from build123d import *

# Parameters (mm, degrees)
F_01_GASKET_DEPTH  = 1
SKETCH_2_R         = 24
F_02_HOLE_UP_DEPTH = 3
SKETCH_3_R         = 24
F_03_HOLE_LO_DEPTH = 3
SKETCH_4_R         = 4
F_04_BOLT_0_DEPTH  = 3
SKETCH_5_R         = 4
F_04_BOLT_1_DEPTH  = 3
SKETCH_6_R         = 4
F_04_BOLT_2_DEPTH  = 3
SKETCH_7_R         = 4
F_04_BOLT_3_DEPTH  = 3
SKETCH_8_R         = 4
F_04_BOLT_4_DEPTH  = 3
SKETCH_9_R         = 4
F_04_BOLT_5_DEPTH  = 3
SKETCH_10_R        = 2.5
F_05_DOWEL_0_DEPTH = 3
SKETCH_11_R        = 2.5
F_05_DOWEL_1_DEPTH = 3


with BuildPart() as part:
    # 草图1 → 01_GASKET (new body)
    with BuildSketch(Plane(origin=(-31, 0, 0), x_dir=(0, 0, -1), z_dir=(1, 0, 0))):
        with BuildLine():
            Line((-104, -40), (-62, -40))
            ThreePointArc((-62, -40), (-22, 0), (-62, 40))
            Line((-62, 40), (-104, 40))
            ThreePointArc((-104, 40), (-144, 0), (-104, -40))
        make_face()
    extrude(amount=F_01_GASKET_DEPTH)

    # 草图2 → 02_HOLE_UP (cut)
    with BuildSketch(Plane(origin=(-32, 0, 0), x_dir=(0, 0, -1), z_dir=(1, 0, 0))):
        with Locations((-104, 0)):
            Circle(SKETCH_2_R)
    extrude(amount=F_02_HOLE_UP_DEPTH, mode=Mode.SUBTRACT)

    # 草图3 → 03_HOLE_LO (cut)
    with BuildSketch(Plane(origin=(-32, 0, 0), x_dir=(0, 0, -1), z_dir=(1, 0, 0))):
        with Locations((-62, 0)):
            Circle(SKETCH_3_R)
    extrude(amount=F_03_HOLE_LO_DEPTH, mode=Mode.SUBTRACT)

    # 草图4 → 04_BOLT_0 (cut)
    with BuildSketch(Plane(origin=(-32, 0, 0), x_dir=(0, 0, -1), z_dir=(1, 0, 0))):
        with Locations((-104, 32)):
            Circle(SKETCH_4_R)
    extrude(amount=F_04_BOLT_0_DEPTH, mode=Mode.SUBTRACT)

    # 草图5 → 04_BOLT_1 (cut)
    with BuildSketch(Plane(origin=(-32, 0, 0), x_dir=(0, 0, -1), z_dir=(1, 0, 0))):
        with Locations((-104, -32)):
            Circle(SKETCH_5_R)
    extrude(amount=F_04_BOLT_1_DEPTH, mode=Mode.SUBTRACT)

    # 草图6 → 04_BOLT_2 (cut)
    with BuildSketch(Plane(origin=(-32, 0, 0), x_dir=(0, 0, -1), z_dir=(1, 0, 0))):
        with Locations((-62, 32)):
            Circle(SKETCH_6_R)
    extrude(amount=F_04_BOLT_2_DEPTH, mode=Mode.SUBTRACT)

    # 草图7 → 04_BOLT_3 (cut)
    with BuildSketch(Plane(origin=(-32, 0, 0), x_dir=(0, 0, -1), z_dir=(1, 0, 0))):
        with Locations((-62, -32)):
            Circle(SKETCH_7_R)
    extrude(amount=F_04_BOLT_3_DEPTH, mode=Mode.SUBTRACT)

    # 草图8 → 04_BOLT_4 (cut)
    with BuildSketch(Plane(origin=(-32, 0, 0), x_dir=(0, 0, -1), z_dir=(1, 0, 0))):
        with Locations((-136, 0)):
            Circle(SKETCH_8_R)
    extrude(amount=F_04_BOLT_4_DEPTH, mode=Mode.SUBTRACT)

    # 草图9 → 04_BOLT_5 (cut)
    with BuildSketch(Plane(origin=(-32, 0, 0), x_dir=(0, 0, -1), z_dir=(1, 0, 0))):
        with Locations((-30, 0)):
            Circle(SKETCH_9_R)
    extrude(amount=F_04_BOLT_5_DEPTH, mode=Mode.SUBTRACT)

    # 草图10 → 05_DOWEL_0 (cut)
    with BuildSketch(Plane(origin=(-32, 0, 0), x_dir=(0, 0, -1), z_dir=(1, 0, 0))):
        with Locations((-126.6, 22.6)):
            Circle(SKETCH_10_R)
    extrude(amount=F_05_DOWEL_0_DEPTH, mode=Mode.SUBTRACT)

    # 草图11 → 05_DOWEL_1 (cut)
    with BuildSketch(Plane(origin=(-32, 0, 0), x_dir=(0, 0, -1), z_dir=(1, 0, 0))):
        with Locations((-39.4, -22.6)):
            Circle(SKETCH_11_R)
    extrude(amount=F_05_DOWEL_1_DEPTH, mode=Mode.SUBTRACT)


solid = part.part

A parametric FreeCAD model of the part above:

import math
import FreeCAD as App
import Part
import Sketcher
Q = App.Units.Quantity

doc = App.newDocument("Part")
body = doc.addObject("PartDesign::Body", "Body")

sketch1 = body.newObject("Sketcher::SketchObject", "Sketch")
sketch1.AttachmentSupport = (doc.getObject("YZ_Plane"), [""])
sketch1.MapMode = "FlatFace"
sketch1.AttachmentOffset = App.Placement(App.Vector(0, 0, -31), App.Rotation())
sketch1.addGeometry([
    Part.LineSegment(App.Vector(-40, 104, 0), App.Vector(-40, 62, 0)),
    Part.ArcOfCircle(Part.Circle(App.Vector(0, 62, 0), App.Vector(0, 0, 1), 40), math.radians(180), math.radians(360)),
    Part.LineSegment(App.Vector(40, 62, 0), App.Vector(40, 104, 0)),
    Part.ArcOfCircle(Part.Circle(App.Vector(0, 104, 0), App.Vector(0, 0, 1), 40), math.radians(0), math.radians(180)),
], False)
sketch1.addConstraint([
    Sketcher.Constraint("Tangent", 0, 2, 1, 1),
    Sketcher.Constraint("Tangent", 1, 2, 2, 1),
    Sketcher.Constraint("Tangent", 2, 2, 3, 1),
    Sketcher.Constraint("Tangent", 3, 2, 0, 1),
    Sketcher.Constraint("Vertical", 0),
    Sketcher.Constraint("Vertical", 2),
    Sketcher.Constraint("PointOnObject", 1, 3, -2),
    Sketcher.Constraint("Radius", 1, Q("40 mm")),
    Sketcher.Constraint("DistanceY", 0, 2, 0, 1, Q("42 mm")),
    Sketcher.Constraint("DistanceY", -1, 1, 1, 3, Q("62 mm")),
])
pad1 = body.newObject("PartDesign::Pad", "Pad")
pad1.Profile = sketch1
pad1.Length = 1

sketch2 = body.newObject("Sketcher::SketchObject", "Sketch001")
sketch2.AttachmentSupport = (doc.getObject("YZ_Plane"), [""])
sketch2.MapMode = "FlatFace"
sketch2.AttachmentOffset = App.Placement(App.Vector(0, 0, -32), App.Rotation())
sketch2.addGeometry(Part.Circle(App.Vector(0, 104, 0), App.Vector(0, 0, 1), 24), False)
sketch2.addConstraint([
    Sketcher.Constraint("PointOnObject", 0, 3, -2),
    Sketcher.Constraint("Diameter", 0, Q("48 mm")),
    Sketcher.Constraint("DistanceY", -1, 1, 0, 3, Q("104 mm")),
])
pocket1 = body.newObject("PartDesign::Pocket", "Pocket")
pocket1.Profile = sketch2
pocket1.Length = 3
pocket1.Reversed = True

sketch3 = body.newObject("Sketcher::SketchObject", "Sketch002")
sketch3.AttachmentSupport = (doc.getObject("YZ_Plane"), [""])
sketch3.MapMode = "FlatFace"
sketch3.AttachmentOffset = App.Placement(App.Vector(0, 0, -32), App.Rotation())
sketch3.addGeometry(Part.Circle(App.Vector(0, 62, 0), App.Vector(0, 0, 1), 24), False)
sketch3.addConstraint([
    Sketcher.Constraint("PointOnObject", 0, 3, -2),
    Sketcher.Constraint("Diameter", 0, Q("48 mm")),
    Sketcher.Constraint("DistanceY", -1, 1, 0, 3, Q("62 mm")),
])
pocket2 = body.newObject("PartDesign::Pocket", "Pocket001")
pocket2.Profile = sketch3
pocket2.Length = 3
pocket2.Reversed = True

sketch4 = body.newObject("Sketcher::SketchObject", "Sketch003")
sketch4.AttachmentSupport = (doc.getObject("YZ_Plane"), [""])
sketch4.MapMode = "FlatFace"
sketch4.AttachmentOffset = App.Placement(App.Vector(0, 0, -32), App.Rotation())
sketch4.addGeometry(Part.Circle(App.Vector(32, 104, 0), App.Vector(0, 0, 1), 4), False)
sketch4.addConstraint([
    Sketcher.Constraint("Diameter", 0, Q("8 mm")),
    Sketcher.Constraint("DistanceX", -1, 1, 0, 3, Q("32 mm")),
    Sketcher.Constraint("DistanceY", -1, 1, 0, 3, Q("104 mm")),
])
pocket3 = body.newObject("PartDesign::Pocket", "Pocket002")
pocket3.Profile = sketch4
pocket3.Length = 3
pocket3.Reversed = True

sketch5 = body.newObject("Sketcher::SketchObject", "Sketch004")
sketch5.AttachmentSupport = (doc.getObject("YZ_Plane"), [""])
sketch5.MapMode = "FlatFace"
sketch5.AttachmentOffset = App.Placement(App.Vector(0, 0, -32), App.Rotation())
sketch5.addGeometry(Part.Circle(App.Vector(-32, 104, 0), App.Vector(0, 0, 1), 4), False)
sketch5.addConstraint([
    Sketcher.Constraint("Diameter", 0, Q("8 mm")),
    Sketcher.Constraint("DistanceX", 0, 3, -1, 1, Q("32 mm")),
    Sketcher.Constraint("DistanceY", -1, 1, 0, 3, Q("104 mm")),
])
pocket4 = body.newObject("PartDesign::Pocket", "Pocket003")
pocket4.Profile = sketch5
pocket4.Length = 3
pocket4.Reversed = True

sketch6 = body.newObject("Sketcher::SketchObject", "Sketch005")
sketch6.AttachmentSupport = (doc.getObject("YZ_Plane"), [""])
sketch6.MapMode = "FlatFace"
sketch6.AttachmentOffset = App.Placement(App.Vector(0, 0, -32), App.Rotation())
sketch6.addGeometry(Part.Circle(App.Vector(32, 62, 0), App.Vector(0, 0, 1), 4), False)
sketch6.addConstraint([
    Sketcher.Constraint("Diameter", 0, Q("8 mm")),
    Sketcher.Constraint("DistanceX", -1, 1, 0, 3, Q("32 mm")),
    Sketcher.Constraint("DistanceY", -1, 1, 0, 3, Q("62 mm")),
])
pocket5 = body.newObject("PartDesign::Pocket", "Pocket004")
pocket5.Profile = sketch6
pocket5.Length = 3
pocket5.Reversed = True

sketch7 = body.newObject("Sketcher::SketchObject", "Sketch006")
sketch7.AttachmentSupport = (doc.getObject("YZ_Plane"), [""])
sketch7.MapMode = "FlatFace"
sketch7.AttachmentOffset = App.Placement(App.Vector(0, 0, -32), App.Rotation())
sketch7.addGeometry(Part.Circle(App.Vector(-32, 62, 0), App.Vector(0, 0, 1), 4), False)
sketch7.addConstraint([
    Sketcher.Constraint("Diameter", 0, Q("8 mm")),
    Sketcher.Constraint("DistanceX", 0, 3, -1, 1, Q("32 mm")),
    Sketcher.Constraint("DistanceY", -1, 1, 0, 3, Q("62 mm")),
])
pocket6 = body.newObject("PartDesign::Pocket", "Pocket005")
pocket6.Profile = sketch7
pocket6.Length = 3
pocket6.Reversed = True

sketch8 = body.newObject("Sketcher::SketchObject", "Sketch007")
sketch8.AttachmentSupport = (doc.getObject("YZ_Plane"), [""])
sketch8.MapMode = "FlatFace"
sketch8.AttachmentOffset = App.Placement(App.Vector(0, 0, -32), App.Rotation())
sketch8.addGeometry(Part.Circle(App.Vector(0, 136, 0), App.Vector(0, 0, 1), 4), False)
sketch8.addConstraint([
    Sketcher.Constraint("PointOnObject", 0, 3, -2),
    Sketcher.Constraint("Diameter", 0, Q("8 mm")),
    Sketcher.Constraint("DistanceY", -1, 1, 0, 3, Q("136 mm")),
])
pocket7 = body.newObject("PartDesign::Pocket", "Pocket006")
pocket7.Profile = sketch8
pocket7.Length = 3
pocket7.Reversed = True

sketch9 = body.newObject("Sketcher::SketchObject", "Sketch008")
sketch9.AttachmentSupport = (doc.getObject("YZ_Plane"), [""])
sketch9.MapMode = "FlatFace"
sketch9.AttachmentOffset = App.Placement(App.Vector(0, 0, -32), App.Rotation())
sketch9.addGeometry(Part.Circle(App.Vector(0, 30, 0), App.Vector(0, 0, 1), 4), False)
sketch9.addConstraint([
    Sketcher.Constraint("PointOnObject", 0, 3, -2),
    Sketcher.Constraint("Diameter", 0, Q("8 mm")),
    Sketcher.Constraint("DistanceY", -1, 1, 0, 3, Q("30 mm")),
])
pocket8 = body.newObject("PartDesign::Pocket", "Pocket007")
pocket8.Profile = sketch9
pocket8.Length = 3
pocket8.Reversed = True

sketch10 = body.newObject("Sketcher::SketchObject", "Sketch009")
sketch10.AttachmentSupport = (doc.getObject("YZ_Plane"), [""])
sketch10.MapMode = "FlatFace"
sketch10.AttachmentOffset = App.Placement(App.Vector(0, 0, -32), App.Rotation())
sketch10.addGeometry(Part.Circle(App.Vector(22.6, 126.6, 0), App.Vector(0, 0, 1), 2.5), False)
sketch10.addConstraint([
    Sketcher.Constraint("Diameter", 0, Q("5 mm")),
    Sketcher.Constraint("DistanceX", -1, 1, 0, 3, Q("22.6 mm")),
    Sketcher.Constraint("DistanceY", -1, 1, 0, 3, Q("126.6 mm")),
])
pocket9 = body.newObject("PartDesign::Pocket", "Pocket008")
pocket9.Profile = sketch10
pocket9.Length = 3
pocket9.Reversed = True

sketch11 = body.newObject("Sketcher::SketchObject", "Sketch010")
sketch11.AttachmentSupport = (doc.getObject("YZ_Plane"), [""])
sketch11.MapMode = "FlatFace"
sketch11.AttachmentOffset = App.Placement(App.Vector(0, 0, -32), App.Rotation())
sketch11.addGeometry(Part.Circle(App.Vector(-22.6, 39.4, 0), App.Vector(0, 0, 1), 2.5), False)
sketch11.addConstraint([
    Sketcher.Constraint("Diameter", 0, Q("5 mm")),
    Sketcher.Constraint("DistanceX", 0, 3, -1, 1, Q("22.6 mm")),
    Sketcher.Constraint("DistanceY", -1, 1, 0, 3, Q("39.4 mm")),
])
pocket10 = body.newObject("PartDesign::Pocket", "Pocket009")
pocket10.Profile = sketch11
pocket10.Length = 3
pocket10.Reversed = True

doc.recompute()
